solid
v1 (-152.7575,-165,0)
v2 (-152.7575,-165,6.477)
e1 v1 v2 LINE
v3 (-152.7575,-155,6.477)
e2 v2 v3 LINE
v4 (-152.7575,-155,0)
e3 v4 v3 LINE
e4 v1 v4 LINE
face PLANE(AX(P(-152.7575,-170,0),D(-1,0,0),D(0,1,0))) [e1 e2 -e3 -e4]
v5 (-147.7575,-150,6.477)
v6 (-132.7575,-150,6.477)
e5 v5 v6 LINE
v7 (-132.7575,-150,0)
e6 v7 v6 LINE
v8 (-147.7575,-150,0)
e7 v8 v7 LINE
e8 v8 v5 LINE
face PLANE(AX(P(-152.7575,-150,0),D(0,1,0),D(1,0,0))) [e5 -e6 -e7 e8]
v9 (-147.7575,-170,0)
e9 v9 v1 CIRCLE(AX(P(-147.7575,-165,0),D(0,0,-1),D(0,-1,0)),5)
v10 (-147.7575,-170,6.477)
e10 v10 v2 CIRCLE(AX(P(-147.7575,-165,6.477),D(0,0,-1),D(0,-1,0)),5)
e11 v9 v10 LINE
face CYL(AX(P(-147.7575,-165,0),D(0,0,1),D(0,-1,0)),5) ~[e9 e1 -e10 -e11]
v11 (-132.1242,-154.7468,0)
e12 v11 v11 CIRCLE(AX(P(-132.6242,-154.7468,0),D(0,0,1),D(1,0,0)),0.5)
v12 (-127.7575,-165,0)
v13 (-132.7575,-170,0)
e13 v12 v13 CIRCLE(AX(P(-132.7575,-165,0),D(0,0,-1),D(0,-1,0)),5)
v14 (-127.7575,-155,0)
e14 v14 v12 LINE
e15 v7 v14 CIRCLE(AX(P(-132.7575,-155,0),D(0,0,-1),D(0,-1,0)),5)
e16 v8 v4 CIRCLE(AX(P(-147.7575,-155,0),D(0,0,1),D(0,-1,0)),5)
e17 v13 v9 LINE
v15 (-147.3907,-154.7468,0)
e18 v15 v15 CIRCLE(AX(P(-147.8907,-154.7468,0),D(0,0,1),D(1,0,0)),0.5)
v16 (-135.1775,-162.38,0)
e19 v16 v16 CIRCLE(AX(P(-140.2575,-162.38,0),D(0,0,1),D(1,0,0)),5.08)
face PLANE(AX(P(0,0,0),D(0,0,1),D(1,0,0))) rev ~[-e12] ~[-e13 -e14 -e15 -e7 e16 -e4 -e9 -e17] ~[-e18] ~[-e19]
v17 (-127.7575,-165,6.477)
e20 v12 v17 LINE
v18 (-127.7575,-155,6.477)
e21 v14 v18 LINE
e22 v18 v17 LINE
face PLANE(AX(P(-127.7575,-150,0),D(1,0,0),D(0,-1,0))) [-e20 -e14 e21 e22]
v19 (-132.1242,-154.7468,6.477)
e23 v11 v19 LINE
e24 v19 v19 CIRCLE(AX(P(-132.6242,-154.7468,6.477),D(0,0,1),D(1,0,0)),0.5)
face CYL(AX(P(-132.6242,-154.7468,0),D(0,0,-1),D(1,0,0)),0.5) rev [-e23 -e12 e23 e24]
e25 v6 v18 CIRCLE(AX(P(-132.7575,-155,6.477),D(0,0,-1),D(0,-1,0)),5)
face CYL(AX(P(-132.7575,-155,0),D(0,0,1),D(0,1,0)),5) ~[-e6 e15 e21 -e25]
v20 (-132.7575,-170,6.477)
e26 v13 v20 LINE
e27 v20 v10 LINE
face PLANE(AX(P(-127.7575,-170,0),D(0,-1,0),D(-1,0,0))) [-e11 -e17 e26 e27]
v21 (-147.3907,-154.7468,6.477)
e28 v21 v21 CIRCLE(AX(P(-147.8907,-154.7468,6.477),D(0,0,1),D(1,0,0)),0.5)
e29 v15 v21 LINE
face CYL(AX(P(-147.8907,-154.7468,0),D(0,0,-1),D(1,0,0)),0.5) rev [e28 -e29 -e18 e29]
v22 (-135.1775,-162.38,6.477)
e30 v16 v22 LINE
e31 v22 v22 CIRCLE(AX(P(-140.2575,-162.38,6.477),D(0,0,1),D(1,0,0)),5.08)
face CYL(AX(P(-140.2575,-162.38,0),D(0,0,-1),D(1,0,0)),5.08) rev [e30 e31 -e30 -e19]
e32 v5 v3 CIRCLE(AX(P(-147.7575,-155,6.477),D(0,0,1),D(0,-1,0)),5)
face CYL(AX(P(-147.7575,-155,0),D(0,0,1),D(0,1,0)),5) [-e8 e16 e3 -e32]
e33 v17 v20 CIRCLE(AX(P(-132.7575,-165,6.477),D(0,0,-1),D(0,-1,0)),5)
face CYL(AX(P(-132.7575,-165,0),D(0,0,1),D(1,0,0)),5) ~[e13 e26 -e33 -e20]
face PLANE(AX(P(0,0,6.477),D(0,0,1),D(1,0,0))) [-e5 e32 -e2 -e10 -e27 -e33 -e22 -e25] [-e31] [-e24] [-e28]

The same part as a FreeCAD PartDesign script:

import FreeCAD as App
import Part
import Sketcher

V = App.Vector


def edges_at(feature, points):
    """Names of the edges that pass closest to the given points."""
    edges = feature.Shape.Edges
    near = lambda p: min(range(len(edges)), key=lambda i: edges[i].distToShape(Part.Vertex(*p))[0])
    return sorted({f"Edge{near(p) + 1}" for p in points})

doc = App.newDocument("Part")
body = doc.addObject("PartDesign::Body", "Body")

# Sketch on XY plane
sketch1 = body.newObject("Sketcher::SketchObject", "Sketch")
sketch1.AttachmentSupport = (doc.getObject("XY_Plane"), [""])
sketch1.MapMode = "FlatFace"
sketch1.addGeometry([
    Part.LineSegment(V(-127.8, -150, 0), V(-152.8, -150, 0)),  # 0
    Part.LineSegment(V(-152.8, -150, 0), V(-152.8, -170, 0)),  # 1
    Part.LineSegment(V(-152.8, -170, 0), V(-127.8, -170, 0)),  # 2
    Part.LineSegment(V(-127.8, -170, 0), V(-127.8, -150, 0)),  # 3
    Part.Circle(V(-132.6, -154.7, 0), V(0, 0, 1), 0.5),  # 4
    Part.Circle(V(-140.3, -162.4, 0), V(0, 0, 1), 5.1),  # 5
    Part.Circle(V(-147.9, -154.7, 0), V(0, 0, 1), 0.5),  # 6
], False)
sketch1.addConstraint([
    Sketcher.Constraint("Coincident", 0, 2, 1, 1),
    Sketcher.Constraint("Coincident", 1, 2, 2, 1),
    Sketcher.Constraint("Coincident", 2, 2, 3, 1),
    Sketcher.Constraint("Coincident", 3, 2, 0, 1),
    Sketcher.Constraint("Horizontal", 0),
    Sketcher.Constraint("Vertical", 1),
    Sketcher.Constraint("Horizontal", 2),
    Sketcher.Constraint("Vertical", 3),
    Sketcher.Constraint("Equal", 4, 6),
    Sketcher.Constraint("Horizontal", 4, 3, 6, 3),
    Sketcher.Constraint("Diameter", 4, 1.0),
    Sketcher.Constraint("DistanceX", 0, 2, 0, 1, 25.0),
    Sketcher.Constraint("DistanceY", 1, 2, 1, 1, 20.0),
    Sketcher.Constraint("Diameter", 5, 10.16),
    Sketcher.Constraint("DistanceY", 0, 2, -1, 1, 150.0),
    Sketcher.Constraint("DistanceX", 0, 2, 5, 3, 12.5),
    Sketcher.Constraint("DistanceY", 5, 3, -1, 1, 162.38),
    Sketcher.Constraint("DistanceX", 4, 3, -1, 1, 132.6242),
    Sketcher.Constraint("DistanceY", 4, 3, -1, 1, 154.7468),
    Sketcher.Constraint("DistanceX", 5, 3, -1, 1, 140.2575),
    Sketcher.Constraint("DistanceX", 6, 3, -1, 1, 147.8907),
])
pad1 = body.newObject("PartDesign::Pad", "Pad")
pad1.Profile = sketch1
pad1.Length = 6.477
doc.recompute()

fillet = body.newObject("PartDesign::Fillet", "Fillet")
fillet.Base = (pad1, edges_at(pad1, [
    (-127.757, -170, 3.239),
    (-127.757, -150, 3.239),
    (-152.757, -170, 3.239),
    (-152.757, -150, 3.239),
]))
fillet.Radius = 5

doc.recompute()
